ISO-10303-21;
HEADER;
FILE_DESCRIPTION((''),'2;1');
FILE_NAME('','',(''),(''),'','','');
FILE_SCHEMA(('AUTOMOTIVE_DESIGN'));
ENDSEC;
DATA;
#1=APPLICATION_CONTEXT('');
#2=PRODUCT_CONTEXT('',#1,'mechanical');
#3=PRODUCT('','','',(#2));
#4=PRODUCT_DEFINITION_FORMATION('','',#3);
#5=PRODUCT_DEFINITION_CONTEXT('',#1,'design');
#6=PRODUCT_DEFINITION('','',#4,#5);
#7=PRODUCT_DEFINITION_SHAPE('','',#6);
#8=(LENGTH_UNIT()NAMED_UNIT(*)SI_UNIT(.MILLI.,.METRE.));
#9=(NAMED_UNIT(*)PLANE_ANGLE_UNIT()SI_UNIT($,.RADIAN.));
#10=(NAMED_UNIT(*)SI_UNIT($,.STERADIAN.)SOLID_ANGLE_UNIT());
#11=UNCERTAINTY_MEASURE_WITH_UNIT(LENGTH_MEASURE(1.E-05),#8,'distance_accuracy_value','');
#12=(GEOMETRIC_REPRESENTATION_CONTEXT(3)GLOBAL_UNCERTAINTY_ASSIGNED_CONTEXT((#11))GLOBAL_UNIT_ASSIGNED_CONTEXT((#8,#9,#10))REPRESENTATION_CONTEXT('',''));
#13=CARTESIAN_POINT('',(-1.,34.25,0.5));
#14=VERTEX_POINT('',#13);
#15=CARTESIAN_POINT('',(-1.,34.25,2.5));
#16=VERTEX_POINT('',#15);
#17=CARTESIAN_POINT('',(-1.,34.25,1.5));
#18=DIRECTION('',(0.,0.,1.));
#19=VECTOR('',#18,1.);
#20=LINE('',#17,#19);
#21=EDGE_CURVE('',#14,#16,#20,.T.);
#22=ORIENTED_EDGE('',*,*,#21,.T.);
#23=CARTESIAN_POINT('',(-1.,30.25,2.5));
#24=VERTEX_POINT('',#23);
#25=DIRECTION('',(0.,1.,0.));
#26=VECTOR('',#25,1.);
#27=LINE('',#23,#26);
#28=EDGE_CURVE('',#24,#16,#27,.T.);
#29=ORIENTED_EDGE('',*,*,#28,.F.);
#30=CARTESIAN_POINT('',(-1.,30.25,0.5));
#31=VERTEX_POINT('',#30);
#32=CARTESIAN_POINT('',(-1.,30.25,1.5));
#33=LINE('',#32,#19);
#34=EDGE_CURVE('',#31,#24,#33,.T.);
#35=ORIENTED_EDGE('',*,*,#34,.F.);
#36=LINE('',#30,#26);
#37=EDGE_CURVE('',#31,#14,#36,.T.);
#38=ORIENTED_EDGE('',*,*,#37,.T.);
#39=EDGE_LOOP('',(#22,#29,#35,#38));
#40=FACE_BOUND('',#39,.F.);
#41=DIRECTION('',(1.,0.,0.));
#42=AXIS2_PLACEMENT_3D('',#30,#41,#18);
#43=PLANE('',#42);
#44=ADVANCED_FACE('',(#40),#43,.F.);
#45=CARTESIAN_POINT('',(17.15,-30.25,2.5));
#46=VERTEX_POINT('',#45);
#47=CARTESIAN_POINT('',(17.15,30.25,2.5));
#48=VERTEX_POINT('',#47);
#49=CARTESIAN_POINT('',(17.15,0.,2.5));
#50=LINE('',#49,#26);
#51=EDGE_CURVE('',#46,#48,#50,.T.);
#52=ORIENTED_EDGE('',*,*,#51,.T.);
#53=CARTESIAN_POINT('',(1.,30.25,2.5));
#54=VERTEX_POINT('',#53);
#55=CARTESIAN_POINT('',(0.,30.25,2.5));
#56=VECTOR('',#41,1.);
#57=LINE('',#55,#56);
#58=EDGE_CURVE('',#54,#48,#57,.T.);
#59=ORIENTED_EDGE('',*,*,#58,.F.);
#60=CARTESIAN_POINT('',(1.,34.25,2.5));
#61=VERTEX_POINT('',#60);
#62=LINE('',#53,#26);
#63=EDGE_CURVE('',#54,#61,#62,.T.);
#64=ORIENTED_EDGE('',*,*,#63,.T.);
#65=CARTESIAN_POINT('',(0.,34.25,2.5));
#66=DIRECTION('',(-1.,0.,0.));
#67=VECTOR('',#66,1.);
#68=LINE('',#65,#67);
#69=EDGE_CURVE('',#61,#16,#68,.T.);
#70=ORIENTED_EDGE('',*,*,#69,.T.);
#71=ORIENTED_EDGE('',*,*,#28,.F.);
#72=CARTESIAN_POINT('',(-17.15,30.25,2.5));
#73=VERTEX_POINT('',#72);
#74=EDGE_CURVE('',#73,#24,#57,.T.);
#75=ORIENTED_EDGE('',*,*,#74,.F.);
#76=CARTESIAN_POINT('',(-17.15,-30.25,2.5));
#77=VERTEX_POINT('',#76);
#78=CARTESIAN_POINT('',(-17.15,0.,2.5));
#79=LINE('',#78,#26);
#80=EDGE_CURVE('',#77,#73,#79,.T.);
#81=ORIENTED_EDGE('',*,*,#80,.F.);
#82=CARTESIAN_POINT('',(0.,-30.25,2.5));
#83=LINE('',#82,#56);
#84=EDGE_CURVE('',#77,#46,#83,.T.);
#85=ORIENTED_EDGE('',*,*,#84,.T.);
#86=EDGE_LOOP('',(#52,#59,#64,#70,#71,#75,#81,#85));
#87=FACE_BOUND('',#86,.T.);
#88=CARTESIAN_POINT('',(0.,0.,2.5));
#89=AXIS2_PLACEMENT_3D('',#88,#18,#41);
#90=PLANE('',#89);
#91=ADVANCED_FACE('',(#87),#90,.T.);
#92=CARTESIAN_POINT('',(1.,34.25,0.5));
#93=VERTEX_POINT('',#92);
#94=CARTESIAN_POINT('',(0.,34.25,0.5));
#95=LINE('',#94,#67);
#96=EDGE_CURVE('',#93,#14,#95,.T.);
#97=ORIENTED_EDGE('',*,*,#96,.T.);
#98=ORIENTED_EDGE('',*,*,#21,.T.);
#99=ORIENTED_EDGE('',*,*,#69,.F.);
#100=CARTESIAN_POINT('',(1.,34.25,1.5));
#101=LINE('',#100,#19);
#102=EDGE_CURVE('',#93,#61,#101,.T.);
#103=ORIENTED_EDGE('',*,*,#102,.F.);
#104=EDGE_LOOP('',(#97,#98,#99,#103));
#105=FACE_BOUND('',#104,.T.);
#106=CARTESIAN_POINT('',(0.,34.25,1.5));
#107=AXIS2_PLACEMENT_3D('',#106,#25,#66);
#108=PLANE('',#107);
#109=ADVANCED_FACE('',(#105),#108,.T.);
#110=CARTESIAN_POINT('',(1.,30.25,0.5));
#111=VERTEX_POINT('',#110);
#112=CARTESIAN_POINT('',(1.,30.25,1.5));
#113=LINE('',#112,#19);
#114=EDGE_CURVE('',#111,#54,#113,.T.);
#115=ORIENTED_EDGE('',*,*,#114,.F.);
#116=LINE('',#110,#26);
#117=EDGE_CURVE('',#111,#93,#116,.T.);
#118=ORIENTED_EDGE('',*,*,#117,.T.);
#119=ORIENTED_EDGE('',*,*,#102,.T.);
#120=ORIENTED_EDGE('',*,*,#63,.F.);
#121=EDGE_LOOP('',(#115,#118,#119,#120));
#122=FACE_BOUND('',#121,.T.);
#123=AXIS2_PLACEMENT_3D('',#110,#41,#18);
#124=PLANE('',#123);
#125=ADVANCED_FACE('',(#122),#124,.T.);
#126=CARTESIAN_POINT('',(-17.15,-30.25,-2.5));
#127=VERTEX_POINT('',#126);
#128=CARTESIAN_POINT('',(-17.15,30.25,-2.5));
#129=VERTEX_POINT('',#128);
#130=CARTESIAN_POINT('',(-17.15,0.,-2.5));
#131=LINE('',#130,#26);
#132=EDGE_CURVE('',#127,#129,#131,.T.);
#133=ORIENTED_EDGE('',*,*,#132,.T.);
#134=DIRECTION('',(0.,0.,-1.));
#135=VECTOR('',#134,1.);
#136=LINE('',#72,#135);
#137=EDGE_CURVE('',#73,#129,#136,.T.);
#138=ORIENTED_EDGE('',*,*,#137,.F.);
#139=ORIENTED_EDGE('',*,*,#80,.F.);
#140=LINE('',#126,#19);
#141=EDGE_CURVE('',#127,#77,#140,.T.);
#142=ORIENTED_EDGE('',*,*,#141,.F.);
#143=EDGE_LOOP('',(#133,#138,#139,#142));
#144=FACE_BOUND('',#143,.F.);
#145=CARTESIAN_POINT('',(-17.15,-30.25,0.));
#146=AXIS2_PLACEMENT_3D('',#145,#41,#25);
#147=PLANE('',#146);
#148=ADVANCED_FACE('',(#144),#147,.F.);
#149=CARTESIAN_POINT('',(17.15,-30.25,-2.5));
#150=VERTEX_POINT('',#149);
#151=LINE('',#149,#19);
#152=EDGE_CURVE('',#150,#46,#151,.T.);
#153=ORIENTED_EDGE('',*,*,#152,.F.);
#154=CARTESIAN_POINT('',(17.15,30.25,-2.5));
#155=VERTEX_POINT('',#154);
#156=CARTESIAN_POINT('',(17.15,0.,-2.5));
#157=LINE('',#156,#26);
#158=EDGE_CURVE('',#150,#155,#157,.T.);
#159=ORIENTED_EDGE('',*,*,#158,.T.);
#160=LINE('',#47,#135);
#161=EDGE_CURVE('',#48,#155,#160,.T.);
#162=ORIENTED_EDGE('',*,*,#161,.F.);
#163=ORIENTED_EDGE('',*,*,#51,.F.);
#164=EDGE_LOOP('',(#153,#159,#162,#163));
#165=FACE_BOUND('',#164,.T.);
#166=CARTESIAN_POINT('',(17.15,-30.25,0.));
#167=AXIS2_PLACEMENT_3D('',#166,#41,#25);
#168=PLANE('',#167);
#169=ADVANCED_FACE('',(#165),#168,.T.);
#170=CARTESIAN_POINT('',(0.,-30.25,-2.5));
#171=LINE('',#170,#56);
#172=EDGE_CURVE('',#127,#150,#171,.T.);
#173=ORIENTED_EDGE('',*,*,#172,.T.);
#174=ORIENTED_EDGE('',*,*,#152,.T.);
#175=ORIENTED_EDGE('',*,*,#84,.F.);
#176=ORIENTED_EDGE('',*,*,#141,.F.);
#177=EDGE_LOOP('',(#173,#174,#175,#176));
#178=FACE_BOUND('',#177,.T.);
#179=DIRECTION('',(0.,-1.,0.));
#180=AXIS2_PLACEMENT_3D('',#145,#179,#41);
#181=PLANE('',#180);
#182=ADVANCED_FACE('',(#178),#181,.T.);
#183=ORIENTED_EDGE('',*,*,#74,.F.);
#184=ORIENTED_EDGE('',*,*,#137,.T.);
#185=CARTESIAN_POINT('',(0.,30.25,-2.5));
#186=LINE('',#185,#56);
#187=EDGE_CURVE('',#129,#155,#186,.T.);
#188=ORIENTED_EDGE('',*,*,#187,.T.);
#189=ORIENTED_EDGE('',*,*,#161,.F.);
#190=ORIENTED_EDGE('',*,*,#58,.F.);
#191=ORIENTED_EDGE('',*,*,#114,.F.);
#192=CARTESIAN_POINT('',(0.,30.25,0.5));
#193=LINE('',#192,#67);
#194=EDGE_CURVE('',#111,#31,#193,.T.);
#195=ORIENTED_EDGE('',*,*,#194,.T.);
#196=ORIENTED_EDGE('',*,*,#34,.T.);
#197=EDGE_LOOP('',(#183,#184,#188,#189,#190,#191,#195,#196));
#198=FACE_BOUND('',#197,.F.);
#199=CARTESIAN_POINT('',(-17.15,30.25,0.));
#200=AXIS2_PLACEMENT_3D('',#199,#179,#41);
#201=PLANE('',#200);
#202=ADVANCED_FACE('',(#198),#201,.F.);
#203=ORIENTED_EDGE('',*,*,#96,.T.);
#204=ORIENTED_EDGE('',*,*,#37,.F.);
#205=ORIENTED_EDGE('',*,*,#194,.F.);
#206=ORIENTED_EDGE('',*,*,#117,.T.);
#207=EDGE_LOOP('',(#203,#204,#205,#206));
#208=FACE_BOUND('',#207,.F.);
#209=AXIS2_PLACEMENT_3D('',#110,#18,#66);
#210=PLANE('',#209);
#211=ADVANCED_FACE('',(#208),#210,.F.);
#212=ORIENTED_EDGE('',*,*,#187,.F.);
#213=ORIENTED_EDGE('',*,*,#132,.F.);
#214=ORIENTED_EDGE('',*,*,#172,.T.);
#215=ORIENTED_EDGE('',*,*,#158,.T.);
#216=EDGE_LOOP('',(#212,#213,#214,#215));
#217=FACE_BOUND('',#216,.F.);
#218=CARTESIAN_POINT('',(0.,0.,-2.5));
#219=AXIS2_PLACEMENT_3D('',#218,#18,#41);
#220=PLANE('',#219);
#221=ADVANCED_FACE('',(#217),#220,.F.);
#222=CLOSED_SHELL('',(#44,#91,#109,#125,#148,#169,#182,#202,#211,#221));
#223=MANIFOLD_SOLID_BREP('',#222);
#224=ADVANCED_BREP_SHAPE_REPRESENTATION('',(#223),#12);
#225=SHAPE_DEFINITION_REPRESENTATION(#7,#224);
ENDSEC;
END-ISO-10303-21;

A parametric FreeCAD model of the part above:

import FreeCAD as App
import Part
import Sketcher
Q = App.Units.Quantity


def add_polygon(sketch, points):
    """Adds a closed chain of lines whose ends are joined by coincident constraints."""
    first, n = sketch.GeometryCount, len(points)
    for a, b in zip(points, points[1:] + points[:1]):
        sketch.addGeometry(Part.LineSegment(App.Vector(*a, 0), App.Vector(*b, 0)), False)
    for i in range(n):
        sketch.addConstraint(Sketcher.Constraint("Coincident", first + i, 2, first + (i + 1) % n, 1))

doc = App.newDocument("Part")
body = doc.addObject("PartDesign::Body", "Body")

sketch1 = doc.addObject("Sketcher::SketchObject", "Sketch")
body.addObject(sketch1)
sketch1.AttachmentSupport = (doc.XY_Plane, [""])
sketch1.MapMode = "FlatFace"
add_polygon(sketch1, [(-17, 30), (-17, -30), (17, -30), (17, 30)])
sketch1.addConstraint([
    Sketcher.Constraint("Vertical", 0),
    Sketcher.Constraint("Horizontal", 1),
    Sketcher.Constraint("Vertical", 2),
    Sketcher.Constraint("Horizontal", 3),
    Sketcher.Constraint("Symmetric", 0, 2, 2, 2, -1, 1),
    Sketcher.Constraint("DistanceX", 1, 1, 1, 2, Q("34.3 mm")),
    Sketcher.Constraint("DistanceY", 0, 2, 0, 1, Q("60.5 mm")),
])
pad1 = doc.addObject("PartDesign::Pad", "Pad")
body.addObject(pad1)
pad1.Profile = sketch1
pad1.Length = 5
pad1.Midplane = True

sketch2 = doc.addObject("Sketcher::SketchObject", "Sketch001")
body.addObject(sketch2)
sketch2.AttachmentSupport = (doc.XZ_Plane, [""])
sketch2.MapMode = "FlatFace"
sketch2.AttachmentOffset = App.Placement(App.Vector(0, 0, -30.25), App.Rotation())
add_polygon(sketch2, [(1, 2.5), (1, 0.5), (-1, 0.5), (-1, 2.5)])
sketch2.addConstraint([
    Sketcher.Constraint("Vertical", 0),
    Sketcher.Constraint("Horizontal", 1),
    Sketcher.Constraint("Vertical", 2),
    Sketcher.Constraint("Horizontal", 3),
    Sketcher.Constraint("Equal", 3, 0),
    Sketcher.Constraint("DistanceX", 1, 2, 1, 1, Q("2 mm")),
    Sketcher.Constraint("DistanceX", -1, 1, 0, 2, Q("1 mm")),
    Sketcher.Constraint("DistanceY", -1, 1, 0, 2, Q("0.5 mm")),
])
pad2 = doc.addObject("PartDesign::Pad", "Pad001")
body.addObject(pad2)
pad2.Profile = sketch2
pad2.Length = 4
pad2.Reversed = True

doc.recompute()
